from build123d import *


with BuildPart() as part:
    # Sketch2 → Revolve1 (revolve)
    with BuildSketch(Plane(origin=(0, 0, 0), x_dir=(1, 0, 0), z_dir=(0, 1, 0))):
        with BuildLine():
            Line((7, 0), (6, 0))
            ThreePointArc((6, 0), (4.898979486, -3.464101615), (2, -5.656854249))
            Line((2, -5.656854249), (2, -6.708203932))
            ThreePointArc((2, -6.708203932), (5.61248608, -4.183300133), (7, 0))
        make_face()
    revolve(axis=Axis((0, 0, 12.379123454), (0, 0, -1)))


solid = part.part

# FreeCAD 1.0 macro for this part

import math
import FreeCAD as App
import Part
import Sketcher
Q = App.Units.Quantity

doc = App.newDocument("Part")
body = doc.addObject("PartDesign::Body", "Body")

# Sketch on XZ plane
sketch1 = body.newObject("Sketcher::SketchObject", "Sketch")
sketch1.AttachmentSupport = (doc.getObject("XZ_Plane"), [""])
sketch1.MapMode = "FlatFace"
sketch1.addGeometry(Part.LineSegment(App.Vector(7, 0, 0), App.Vector(6, 0, 0)), False)
sketch1.addGeometry(Part.ArcOfCircle(Part.Circle(App.Vector(0, 0, 0), App.Vector(0, 0, 1), 6), math.radians(0), math.radians(71)), False)
sketch1.addGeometry(Part.LineSegment(App.Vector(2, 5.7, 0), App.Vector(2, 6.7, 0)), False)
sketch1.addGeometry(Part.ArcOfCircle(Part.Circle(App.Vector(0, 0, 0), App.Vector(0, 0, 1), 7), math.radians(0), math.radians(73)), False)
sketch1.addConstraint(Sketcher.Constraint("Coincident", 0, 2, 1, 1))
sketch1.addConstraint(Sketcher.Constraint("Coincident", 1, 2, 2, 1))
sketch1.addConstraint(Sketcher.Constraint("Coincident", 2, 2, 3, 2))
sketch1.addConstraint(Sketcher.Constraint("Coincident", 3, 1, 0, 1))
sketch1.addConstraint(Sketcher.Constraint("Horizontal", 0))
sketch1.addConstraint(Sketcher.Constraint("Vertical", 2))
sketch1.addConstraint(Sketcher.Constraint("Coincident", 1, 3, -1, 1))
sketch1.addConstraint(Sketcher.Constraint("Coincident", 3, 3, -1, 1))
sketch1.addConstraint(Sketcher.Constraint("PointOnObject", 0, 2, -1))
sketch1.addConstraint(Sketcher.Constraint("Radius", 1, Q("6 mm")))
sketch1.addConstraint(Sketcher.Constraint("Radius", 3, Q("7 mm")))
sketch1.addConstraint(Sketcher.Constraint("DistanceX", -1, 1, 1, 2, Q("2 mm")))
revolution = body.newObject("PartDesign::Revolution", "Revolution")
revolution.Profile = sketch1
revolution.ReferenceAxis = (sketch1, ["V_Axis"])
revolution.Angle = 360

doc.recompute()
